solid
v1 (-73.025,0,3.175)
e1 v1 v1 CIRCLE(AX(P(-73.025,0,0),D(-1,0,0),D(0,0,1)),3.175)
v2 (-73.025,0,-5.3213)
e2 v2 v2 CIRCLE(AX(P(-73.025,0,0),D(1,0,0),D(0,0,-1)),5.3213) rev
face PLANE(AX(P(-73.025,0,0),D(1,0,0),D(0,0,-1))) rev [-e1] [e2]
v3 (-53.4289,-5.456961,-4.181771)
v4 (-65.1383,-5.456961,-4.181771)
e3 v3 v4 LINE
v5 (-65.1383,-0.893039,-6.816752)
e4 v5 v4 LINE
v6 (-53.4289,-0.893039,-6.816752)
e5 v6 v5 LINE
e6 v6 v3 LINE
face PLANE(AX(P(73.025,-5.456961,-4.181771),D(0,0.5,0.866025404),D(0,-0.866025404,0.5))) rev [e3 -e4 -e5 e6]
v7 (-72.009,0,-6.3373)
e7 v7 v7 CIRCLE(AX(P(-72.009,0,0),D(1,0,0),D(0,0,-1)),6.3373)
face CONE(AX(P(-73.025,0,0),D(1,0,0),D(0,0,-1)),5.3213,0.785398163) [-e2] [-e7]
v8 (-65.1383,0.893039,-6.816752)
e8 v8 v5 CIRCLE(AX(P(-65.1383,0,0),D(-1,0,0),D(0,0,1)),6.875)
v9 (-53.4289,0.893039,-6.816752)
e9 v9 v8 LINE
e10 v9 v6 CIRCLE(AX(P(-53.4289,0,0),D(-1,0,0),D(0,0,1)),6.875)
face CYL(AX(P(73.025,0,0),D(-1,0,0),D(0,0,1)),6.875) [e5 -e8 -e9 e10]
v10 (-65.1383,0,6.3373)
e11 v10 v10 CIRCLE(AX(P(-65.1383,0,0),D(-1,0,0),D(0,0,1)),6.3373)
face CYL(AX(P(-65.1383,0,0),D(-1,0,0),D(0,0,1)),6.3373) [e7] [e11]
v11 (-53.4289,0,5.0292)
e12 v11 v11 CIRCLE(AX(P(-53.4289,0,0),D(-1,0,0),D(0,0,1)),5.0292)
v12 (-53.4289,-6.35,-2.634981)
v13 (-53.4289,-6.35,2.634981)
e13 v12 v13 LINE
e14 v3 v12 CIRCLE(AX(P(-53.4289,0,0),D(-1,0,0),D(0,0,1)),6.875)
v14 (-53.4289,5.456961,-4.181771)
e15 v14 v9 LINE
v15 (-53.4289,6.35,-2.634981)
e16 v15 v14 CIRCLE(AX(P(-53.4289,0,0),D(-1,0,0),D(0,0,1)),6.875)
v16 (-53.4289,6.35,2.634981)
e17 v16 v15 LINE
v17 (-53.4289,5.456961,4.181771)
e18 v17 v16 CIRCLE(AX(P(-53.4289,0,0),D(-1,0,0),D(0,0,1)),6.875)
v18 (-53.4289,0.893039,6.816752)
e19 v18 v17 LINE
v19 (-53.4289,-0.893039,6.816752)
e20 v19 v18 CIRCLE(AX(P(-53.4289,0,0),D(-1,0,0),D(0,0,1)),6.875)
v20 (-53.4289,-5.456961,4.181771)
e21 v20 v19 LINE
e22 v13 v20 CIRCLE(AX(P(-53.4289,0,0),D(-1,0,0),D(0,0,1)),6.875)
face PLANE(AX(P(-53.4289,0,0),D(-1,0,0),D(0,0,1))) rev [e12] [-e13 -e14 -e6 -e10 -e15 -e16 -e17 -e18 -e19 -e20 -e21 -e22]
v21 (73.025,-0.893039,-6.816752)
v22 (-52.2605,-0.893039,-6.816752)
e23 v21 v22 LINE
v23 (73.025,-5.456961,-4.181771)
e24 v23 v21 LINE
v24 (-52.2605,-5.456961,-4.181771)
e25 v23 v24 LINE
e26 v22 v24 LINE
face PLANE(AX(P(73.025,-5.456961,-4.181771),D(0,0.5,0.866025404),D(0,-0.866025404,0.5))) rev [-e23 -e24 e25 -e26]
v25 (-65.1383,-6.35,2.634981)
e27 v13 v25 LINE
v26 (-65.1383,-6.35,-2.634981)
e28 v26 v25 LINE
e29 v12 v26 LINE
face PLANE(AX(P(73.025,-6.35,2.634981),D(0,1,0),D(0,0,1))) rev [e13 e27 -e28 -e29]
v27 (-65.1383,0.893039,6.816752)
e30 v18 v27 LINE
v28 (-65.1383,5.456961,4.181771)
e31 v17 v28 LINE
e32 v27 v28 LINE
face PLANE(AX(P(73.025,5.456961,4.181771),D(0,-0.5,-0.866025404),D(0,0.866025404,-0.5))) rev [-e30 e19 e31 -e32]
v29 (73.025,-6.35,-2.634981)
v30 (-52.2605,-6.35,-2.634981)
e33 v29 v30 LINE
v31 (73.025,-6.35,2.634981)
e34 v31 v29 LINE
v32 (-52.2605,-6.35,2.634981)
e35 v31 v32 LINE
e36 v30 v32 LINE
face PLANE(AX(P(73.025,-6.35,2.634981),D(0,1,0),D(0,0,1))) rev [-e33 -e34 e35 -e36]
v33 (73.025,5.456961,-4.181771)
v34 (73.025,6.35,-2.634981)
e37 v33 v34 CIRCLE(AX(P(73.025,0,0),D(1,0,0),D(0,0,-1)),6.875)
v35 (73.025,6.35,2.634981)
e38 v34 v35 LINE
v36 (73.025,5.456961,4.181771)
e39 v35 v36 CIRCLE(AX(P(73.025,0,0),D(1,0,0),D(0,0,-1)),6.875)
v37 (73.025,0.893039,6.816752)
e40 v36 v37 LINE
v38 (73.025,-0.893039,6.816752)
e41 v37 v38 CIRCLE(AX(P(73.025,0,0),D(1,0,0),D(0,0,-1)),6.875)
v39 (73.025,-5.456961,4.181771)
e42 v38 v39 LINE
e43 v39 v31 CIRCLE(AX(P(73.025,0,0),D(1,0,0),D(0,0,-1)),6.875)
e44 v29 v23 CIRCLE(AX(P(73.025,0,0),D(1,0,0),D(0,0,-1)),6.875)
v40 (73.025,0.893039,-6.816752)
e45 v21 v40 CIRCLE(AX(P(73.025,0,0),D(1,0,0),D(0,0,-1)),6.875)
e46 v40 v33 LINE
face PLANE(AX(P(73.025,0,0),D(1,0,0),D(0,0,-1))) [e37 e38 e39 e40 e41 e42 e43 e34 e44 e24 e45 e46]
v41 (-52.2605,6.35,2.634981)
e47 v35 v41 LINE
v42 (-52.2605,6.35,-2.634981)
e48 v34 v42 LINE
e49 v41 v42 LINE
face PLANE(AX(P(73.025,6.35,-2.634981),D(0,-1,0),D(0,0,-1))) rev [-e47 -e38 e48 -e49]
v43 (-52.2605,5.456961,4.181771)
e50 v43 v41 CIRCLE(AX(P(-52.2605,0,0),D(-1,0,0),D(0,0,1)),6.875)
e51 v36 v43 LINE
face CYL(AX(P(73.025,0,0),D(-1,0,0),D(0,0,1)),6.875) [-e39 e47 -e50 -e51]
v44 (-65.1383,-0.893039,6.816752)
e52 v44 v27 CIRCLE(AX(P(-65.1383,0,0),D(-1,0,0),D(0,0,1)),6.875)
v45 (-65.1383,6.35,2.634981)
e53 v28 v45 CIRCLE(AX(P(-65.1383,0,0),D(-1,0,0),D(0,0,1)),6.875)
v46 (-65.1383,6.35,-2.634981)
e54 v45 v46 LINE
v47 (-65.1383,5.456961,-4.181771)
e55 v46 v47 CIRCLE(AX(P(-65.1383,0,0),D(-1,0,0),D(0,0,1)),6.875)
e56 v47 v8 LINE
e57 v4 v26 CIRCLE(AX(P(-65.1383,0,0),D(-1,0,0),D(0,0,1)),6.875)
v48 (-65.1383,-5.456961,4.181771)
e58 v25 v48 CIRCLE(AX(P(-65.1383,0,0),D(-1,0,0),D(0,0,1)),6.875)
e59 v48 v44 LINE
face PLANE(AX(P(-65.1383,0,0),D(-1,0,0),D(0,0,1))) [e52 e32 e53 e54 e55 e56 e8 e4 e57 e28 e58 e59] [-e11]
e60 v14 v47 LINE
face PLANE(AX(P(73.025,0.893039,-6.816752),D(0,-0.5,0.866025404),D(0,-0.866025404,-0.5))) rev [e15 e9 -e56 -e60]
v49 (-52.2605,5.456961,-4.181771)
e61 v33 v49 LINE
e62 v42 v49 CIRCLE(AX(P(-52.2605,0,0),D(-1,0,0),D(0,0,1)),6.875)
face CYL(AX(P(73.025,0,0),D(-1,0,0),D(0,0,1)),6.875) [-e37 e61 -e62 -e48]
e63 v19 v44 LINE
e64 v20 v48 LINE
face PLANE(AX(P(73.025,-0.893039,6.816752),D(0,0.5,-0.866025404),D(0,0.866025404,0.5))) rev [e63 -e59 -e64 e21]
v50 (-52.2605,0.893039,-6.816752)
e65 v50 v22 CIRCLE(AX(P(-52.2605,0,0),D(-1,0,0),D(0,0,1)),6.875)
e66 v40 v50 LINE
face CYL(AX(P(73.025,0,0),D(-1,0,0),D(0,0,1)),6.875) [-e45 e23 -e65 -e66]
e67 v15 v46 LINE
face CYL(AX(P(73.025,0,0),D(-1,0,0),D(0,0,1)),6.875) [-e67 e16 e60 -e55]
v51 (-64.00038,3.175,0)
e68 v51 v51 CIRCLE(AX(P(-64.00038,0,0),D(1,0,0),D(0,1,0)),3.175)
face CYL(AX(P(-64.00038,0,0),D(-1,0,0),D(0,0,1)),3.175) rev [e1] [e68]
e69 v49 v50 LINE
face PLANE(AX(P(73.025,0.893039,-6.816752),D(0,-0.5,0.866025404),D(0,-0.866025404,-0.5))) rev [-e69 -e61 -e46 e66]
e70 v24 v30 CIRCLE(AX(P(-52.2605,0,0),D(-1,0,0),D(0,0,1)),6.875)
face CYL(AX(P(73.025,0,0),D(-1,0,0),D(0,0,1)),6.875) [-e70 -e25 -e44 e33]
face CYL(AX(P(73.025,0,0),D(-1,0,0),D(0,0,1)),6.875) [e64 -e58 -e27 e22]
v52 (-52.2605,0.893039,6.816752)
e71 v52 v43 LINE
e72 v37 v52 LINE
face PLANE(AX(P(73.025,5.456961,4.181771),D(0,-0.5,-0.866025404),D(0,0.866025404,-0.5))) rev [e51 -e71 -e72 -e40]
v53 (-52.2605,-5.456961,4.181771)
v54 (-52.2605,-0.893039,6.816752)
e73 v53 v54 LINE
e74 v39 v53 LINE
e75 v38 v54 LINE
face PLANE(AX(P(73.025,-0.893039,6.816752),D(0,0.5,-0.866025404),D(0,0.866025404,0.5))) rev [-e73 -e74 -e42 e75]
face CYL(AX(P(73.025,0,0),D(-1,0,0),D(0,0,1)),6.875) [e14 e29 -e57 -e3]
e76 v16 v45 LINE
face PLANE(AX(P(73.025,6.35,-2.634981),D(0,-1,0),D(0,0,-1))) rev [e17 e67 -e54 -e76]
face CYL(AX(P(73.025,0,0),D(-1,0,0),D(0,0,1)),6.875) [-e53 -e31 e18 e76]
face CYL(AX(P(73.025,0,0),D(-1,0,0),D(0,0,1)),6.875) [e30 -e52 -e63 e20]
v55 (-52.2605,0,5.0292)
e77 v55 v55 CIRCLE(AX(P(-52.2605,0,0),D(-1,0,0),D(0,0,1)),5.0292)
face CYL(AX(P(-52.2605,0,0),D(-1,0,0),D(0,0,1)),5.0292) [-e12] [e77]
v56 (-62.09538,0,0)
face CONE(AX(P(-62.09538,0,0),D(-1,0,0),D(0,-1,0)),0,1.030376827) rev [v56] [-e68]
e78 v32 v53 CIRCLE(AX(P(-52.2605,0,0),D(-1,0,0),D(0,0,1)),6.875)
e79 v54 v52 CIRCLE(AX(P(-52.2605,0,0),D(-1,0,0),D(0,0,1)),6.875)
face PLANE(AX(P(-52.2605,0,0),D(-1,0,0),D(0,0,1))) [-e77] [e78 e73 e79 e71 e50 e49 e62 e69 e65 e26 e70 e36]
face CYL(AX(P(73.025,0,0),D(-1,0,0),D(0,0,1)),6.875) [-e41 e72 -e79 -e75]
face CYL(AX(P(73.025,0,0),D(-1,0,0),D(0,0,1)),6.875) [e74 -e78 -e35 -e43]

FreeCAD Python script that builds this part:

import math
import FreeCAD as App
import Part
import Sketcher
from FreeCAD import Vector
Q = App.Units.Quantity


def edges_at(feature, points):
    """Names of the edges that pass closest to the given points."""
    edges = feature.Shape.Edges
    near = lambda p: min(range(len(edges)), key=lambda i: edges[i].distToShape(Part.Vertex(*p))[0])
    return sorted({f"Edge{near(p) + 1}" for p in points})

doc = App.newDocument("Part")
body = doc.addObject("PartDesign::Body", "Body")

sketch1 = doc.addObject("Sketcher::SketchObject", "Sketch")
body.addObject(sketch1)
sketch1.AttachmentSupport = (doc.YZ_Plane, [""])
sketch1.MapMode = "FlatFace"
sketch1.addGeometry([
    Part.LineSegment(Vector(6.3, -2.6, 0), Vector(6.3, 2.6, 0)),
    Part.ArcOfCircle(Part.Circle(Vector(0, 0, 0), Vector(0, 0, 1), 6.9), math.radians(22.54), math.radians(37.46)),
    Part.LineSegment(Vector(5.5, 4.2, 0), Vector(0.9, 6.8, 0)),
    Part.ArcOfCircle(Part.Circle(Vector(0, 0, 0), Vector(0, 0, 1), 6.9), math.radians(82.54), math.radians(97.46)),
    Part.LineSegment(Vector(-0.9, 6.8, 0), Vector(-5.5, 4.2, 0)),
    Part.ArcOfCircle(Part.Circle(Vector(0, 0, 0), Vector(0, 0, 1), 6.9), math.radians(142.54), math.radians(157.46)),
    Part.LineSegment(Vector(-6.3, 2.6, 0), Vector(-6.3, -2.6, 0)),
    Part.ArcOfCircle(Part.Circle(Vector(0, 0, 0), Vector(0, 0, 1), 6.9), math.radians(-157.46), math.radians(-142.54)),
    Part.LineSegment(Vector(-5.5, -4.2, 0), Vector(-0.9, -6.8, 0)),
    Part.ArcOfCircle(Part.Circle(Vector(0, 0, 0), Vector(0, 0, 1), 6.9), math.radians(-97.46), math.radians(-82.54)),
    Part.LineSegment(Vector(0.9, -6.8, 0), Vector(5.5, -4.2, 0)),
    Part.ArcOfCircle(Part.Circle(Vector(0, 0, 0), Vector(0, 0, 1), 6.9), math.radians(-37.46), math.radians(-22.54)),
], False)
sketch1.addConstraint([
    Sketcher.Constraint("Coincident", 0, 2, 1, 1),
    Sketcher.Constraint("Coincident", 1, 2, 2, 1),
    Sketcher.Constraint("Coincident", 2, 2, 3, 1),
    Sketcher.Constraint("Coincident", 3, 2, 4, 1),
    Sketcher.Constraint("Coincident", 4, 2, 5, 1),
    Sketcher.Constraint("Coincident", 5, 2, 6, 1),
    Sketcher.Constraint("Coincident", 6, 2, 7, 1),
    Sketcher.Constraint("Coincident", 7, 2, 8, 1),
    Sketcher.Constraint("Coincident", 8, 2, 9, 1),
    Sketcher.Constraint("Coincident", 9, 2, 10, 1),
    Sketcher.Constraint("Coincident", 10, 2, 11, 1),
    Sketcher.Constraint("Coincident", 11, 2, 0, 1),
    Sketcher.Constraint("Vertical", 0),
    Sketcher.Constraint("Vertical", 6),
    Sketcher.Constraint("Coincident", 1, 3, -1, 1),
    Sketcher.Constraint("Coincident", 3, 3, -1, 1),
    Sketcher.Constraint("Coincident", 5, 3, -1, 1),
    Sketcher.Constraint("Coincident", 7, 3, -1, 1),
    Sketcher.Constraint("Coincident", 9, 3, -1, 1),
    Sketcher.Constraint("Coincident", 11, 3, -1, 1),
    Sketcher.Constraint("Equal", 1, 3),
    Sketcher.Constraint("Equal", 3, 5),
    Sketcher.Constraint("Equal", 5, 7),
    Sketcher.Constraint("Equal", 7, 9),
    Sketcher.Constraint("Equal", 9, 11),
    Sketcher.Constraint("Parallel", 2, 8),
    Sketcher.Constraint("Parallel", 4, 10),
    Sketcher.Constraint("Horizontal", 2, 2, 3, 2),
    Sketcher.Constraint("Horizontal", 1, 2, 4, 2),
    Sketcher.Constraint("Horizontal", 0, 2, 5, 2),
    Sketcher.Constraint("Horizontal", 8, 2, 9, 2),
    Sketcher.Constraint("Vertical", 4, 2, 7, 2),
    Sketcher.Constraint("Angle", 2, Q("150 deg")),
    Sketcher.Constraint("DistanceX", -1, 1, 0, 2, Q("0.25 in")),
    Sketcher.Constraint("Radius", 1, 6.875),
    Sketcher.Constraint("DistanceX", 3, 2, 1, 2, Q("0.25 in")),
])
pad1 = doc.addObject("PartDesign::Pad", "Pad")
body.addObject(pad1)
pad1.Profile = sketch1
pad1.Length = Q("5.75 in")
pad1.Midplane = True

sketch2 = doc.addObject("Sketcher::SketchObject", "Sketch001")
body.addObject(sketch2)
sketch2.AttachmentSupport = (doc.YZ_Plane, [""])
sketch2.MapMode = "FlatFace"
sketch2.AttachmentOffset = App.Placement(Vector(0, 0, -2.5645 * 25.4), App.Rotation())
sketch2.addGeometry([
    Part.LineSegment(Vector(5.5, -4.2, 0), Vector(0.9, -6.8, 0)),
    Part.ArcOfCircle(Part.Circle(Vector(0, 0, 0), Vector(0, 0, 1), 6.9), math.radians(-97.46), math.radians(-82.54)),
    Part.LineSegment(Vector(-0.9, -6.8, 0), Vector(-5.5, -4.2, 0)),
    Part.ArcOfCircle(Part.Circle(Vector(0, 0, 0), Vector(0, 0, 1), 6.9), math.radians(-157.46), math.radians(-142.54)),
    Part.LineSegment(Vector(-6.3, -2.6, 0), Vector(-6.3, 2.6, 0)),
    Part.ArcOfCircle(Part.Circle(Vector(0, 0, 0), Vector(0, 0, 1), 6.9), math.radians(142.54), math.radians(157.46)),
    Part.LineSegment(Vector(-5.5, 4.2, 0), Vector(-0.9, 6.8, 0)),
    Part.ArcOfCircle(Part.Circle(Vector(0, 0, 0), Vector(0, 0, 1), 6.9), math.radians(82.54), math.radians(97.46)),
    Part.LineSegment(Vector(0.9, 6.8, 0), Vector(5.5, 4.2, 0)),
    Part.ArcOfCircle(Part.Circle(Vector(0, 0, 0), Vector(0, 0, 1), 6.9), math.radians(22.54), math.radians(37.46)),
    Part.LineSegment(Vector(6.3, 2.6, 0), Vector(6.3, -2.6, 0)),
    Part.ArcOfCircle(Part.Circle(Vector(0, 0, 0), Vector(0, 0, 1), 6.9), math.radians(-37.46), math.radians(-22.54)),
    Part.Circle(Vector(0, 0, 0), Vector(0, 0, 1), 6.3),
], False)
sketch2.addConstraint([
    Sketcher.Constraint("Coincident", 0, 2, 1, 2),
    Sketcher.Constraint("Coincident", 1, 1, 2, 1),
    Sketcher.Constraint("Coincident", 2, 2, 3, 2),
    Sketcher.Constraint("Coincident", 3, 1, 4, 1),
    Sketcher.Constraint("Coincident", 4, 2, 5, 2),
    Sketcher.Constraint("Coincident", 5, 1, 6, 1),
    Sketcher.Constraint("Coincident", 6, 2, 7, 2),
    Sketcher.Constraint("Coincident", 7, 1, 8, 1),
    Sketcher.Constraint("Coincident", 8, 2, 9, 2),
    Sketcher.Constraint("Coincident", 9, 1, 10, 1),
    Sketcher.Constraint("Coincident", 10, 2, 11, 2),
    Sketcher.Constraint("Coincident", 11, 1, 0, 1),
    Sketcher.Constraint("Vertical", 4),
    Sketcher.Constraint("Vertical", 10),
    Sketcher.Constraint("Coincident", 1, 3, -1, 1),
    Sketcher.Constraint("Coincident", 3, 3, -1, 1),
    Sketcher.Constraint("Coincident", 5, 3, -1, 1),
    Sketcher.Constraint("Coincident", 7, 3, -1, 1),
    Sketcher.Constraint("Coincident", 9, 3, -1, 1),
    Sketcher.Constraint("Coincident", 11, 3, -1, 1),
    Sketcher.Constraint("Coincident", 12, 3, -1, 1),
    Sketcher.Constraint("Equal", 1, 3),
    Sketcher.Constraint("Equal", 3, 5),
    Sketcher.Constraint("Equal", 5, 7),
    Sketcher.Constraint("Equal", 7, 9),
    Sketcher.Constraint("Equal", 9, 11),
    Sketcher.Constraint("Parallel", 0, 6),
    Sketcher.Constraint("Parallel", 2, 8),
    Sketcher.Constraint("Horizontal", 0, 2, 1, 1),
    Sketcher.Constraint("Horizontal", 6, 2, 7, 1),
    Sketcher.Constraint("Horizontal", 5, 1, 8, 2),
    Sketcher.Constraint("Horizontal", 4, 2, 9, 1),
    Sketcher.Constraint("Vertical", 2, 2, 5, 1),
    Sketcher.Constraint("Diameter", 12, Q("0.499 in")),
    Sketcher.Constraint("Angle", 0, Q("-150 deg")),
    Sketcher.Constraint("DistanceX", 3, 1, -1, 1, Q("0.25 in")),
    Sketcher.Constraint("Radius", 1, 6.875),
    Sketcher.Constraint("DistanceX", 2, 2, 0, 2, Q("0.25 in")),
])
pocket1 = doc.addObject("PartDesign::Pocket", "Pocket")
body.addObject(pocket1)
pocket1.Profile = sketch2
pocket1.Length = Q("0.3105 in")

sketch3 = doc.addObject("Sketcher::SketchObject", "Sketch002")
body.addObject(sketch3)
sketch3.AttachmentSupport = (doc.YZ_Plane, [""])
sketch3.MapMode = "FlatFace"
sketch3.AttachmentOffset = App.Placement(Vector(0, 0, -2.0575 * 25.4), App.Rotation())
sketch3.addGeometry([
    Part.LineSegment(Vector(5.5, -4.2, 0), Vector(0.9, -6.8, 0)),
    Part.ArcOfCircle(Part.Circle(Vector(0, 0, 0), Vector(0, 0, 1), 6.9), math.radians(-97.46), math.radians(-82.54)),
    Part.LineSegment(Vector(-0.9, -6.8, 0), Vector(-5.5, -4.2, 0)),
    Part.ArcOfCircle(Part.Circle(Vector(0, 0, 0), Vector(0, 0, 1), 6.9), math.radians(-157.46), math.radians(-142.54)),
    Part.LineSegment(Vector(-6.3, -2.6, 0), Vector(-6.3, 2.6, 0)),
    Part.ArcOfCircle(Part.Circle(Vector(0, 0, 0), Vector(0, 0, 1), 6.9), math.radians(142.54), math.radians(157.46)),
    Part.LineSegment(Vector(-5.5, 4.2, 0), Vector(-0.9, 6.8, 0)),
    Part.ArcOfCircle(Part.Circle(Vector(0, 0, 0), Vector(0, 0, 1), 6.9), math.radians(82.54), math.radians(97.46)),
    Part.LineSegment(Vector(0.9, 6.8, 0), Vector(5.5, 4.2, 0)),
    Part.ArcOfCircle(Part.Circle(Vector(0, 0, 0), Vector(0, 0, 1), 6.9), math.radians(22.54), math.radians(37.46)),
    Part.LineSegment(Vector(6.3, 2.6, 0), Vector(6.3, -2.6, 0)),
    Part.ArcOfCircle(Part.Circle(Vector(0, 0, 0), Vector(0, 0, 1), 6.9), math.radians(-37.46), math.radians(-22.54)),
    Part.Circle(Vector(0, 0, 0), Vector(0, 0, 1), 5),
], False)
sketch3.addConstraint([
    Sketcher.Constraint("Coincident", 0, 2, 1, 2),
    Sketcher.Constraint("Coincident", 1, 1, 2, 1),
    Sketcher.Constraint("Coincident", 2, 2, 3, 2),
    Sketcher.Constraint("Coincident", 3, 1, 4, 1),
    Sketcher.Constraint("Coincident", 4, 2, 5, 2),
    Sketcher.Constraint("Coincident", 5, 1, 6, 1),
    Sketcher.Constraint("Coincident", 6, 2, 7, 2),
    Sketcher.Constraint("Coincident", 7, 1, 8, 1),
    Sketcher.Constraint("Coincident", 8, 2, 9, 2),
    Sketcher.Constraint("Coincident", 9, 1, 10, 1),
    Sketcher.Constraint("Coincident", 10, 2, 11, 2),
    Sketcher.Constraint("Coincident", 11, 1, 0, 1),
    Sketcher.Constraint("Vertical", 4),
    Sketcher.Constraint("Vertical", 10),
    Sketcher.Constraint("Coincident", 1, 3, -1, 1),
    Sketcher.Constraint("Coincident", 3, 3, -1, 1),
    Sketcher.Constraint("Coincident", 5, 3, -1, 1),
    Sketcher.Constraint("Coincident", 7, 3, -1, 1),
    Sketcher.Constraint("Coincident", 9, 3, -1, 1),
    Sketcher.Constraint("Coincident", 11, 3, -1, 1),
    Sketcher.Constraint("Coincident", 12, 3, -1, 1),
    Sketcher.Constraint("Equal", 1, 3),
    Sketcher.Constraint("Equal", 3, 5),
    Sketcher.Constraint("Equal", 5, 7),
    Sketcher.Constraint("Equal", 7, 9),
    Sketcher.Constraint("Equal", 9, 11),
    Sketcher.Constraint("Parallel", 0, 6),
    Sketcher.Constraint("Parallel", 2, 8),
    Sketcher.Constraint("Horizontal", 0, 2, 1, 1),
    Sketcher.Constraint("Horizontal", 6, 2, 7, 1),
    Sketcher.Constraint("Horizontal", 5, 1, 8, 2),
    Sketcher.Constraint("Horizontal", 4, 2, 9, 1),
    Sketcher.Constraint("Vertical", 2, 2, 5, 1),
    Sketcher.Constraint("Diameter", 12, Q("0.396 in")),
    Sketcher.Constraint("Angle", 0, Q("-150 deg")),
    Sketcher.Constraint("DistanceX", 3, 1, -1, 1, Q("0.25 in")),
    Sketcher.Constraint("Radius", 1, 6.875),
    Sketcher.Constraint("DistanceX", 2, 2, 0, 2, Q("0.25 in")),
])
pocket2 = doc.addObject("PartDesign::Pocket", "Pocket001")
body.addObject(pocket2)
pocket2.Profile = sketch3
pocket2.Length = Q("0.046 in")

sketch4 = doc.addObject("Sketcher::SketchObject", "Sketch003")
body.addObject(sketch4)
sketch4.AttachmentSupport = (doc.YZ_Plane, [""])
sketch4.MapMode = "FlatFace"
sketch4.AttachmentOffset = App.Placement(Vector(0, 0, -2.875 * 25.4), App.Rotation())
sketch4.addGeometry(Part.Circle(Vector(0, 0, 0), Vector(0, 0, 1), 3.2), False)
sketch4.addConstraint([
    Sketcher.Constraint("Coincident", 0, 3, -1, 1),
    Sketcher.Constraint("Diameter", 0, Q("0.25 in")),
])
pocket3 = doc.addObject("PartDesign::Pocket", "Pocket002")
body.addObject(pocket3)
pocket3.Profile = sketch4
pocket3.Length = Q("0.3553 in")
pocket3.Reversed = True

sketch5 = doc.addObject("Sketcher::SketchObject", "Sketch004")
body.addObject(sketch5)
sketch5.AttachmentSupport = (doc.XY_Plane, [""])
sketch5.MapMode = "FlatFace"
sketch5.addGeometry([
    Part.LineSegment(Vector(-64, 0, 0), Vector(-62.1, 0, 0)),
    Part.LineSegment(Vector(-62.1, 0, 0), Vector(-64, 3.2, 0)),
    Part.LineSegment(Vector(-64, 3.2, 0), Vector(-64, 0, 0)),
], False)
sketch5.addConstraint([
    Sketcher.Constraint("Coincident", 0, 2, 1, 1),
    Sketcher.Constraint("Coincident", 1, 2, 2, 1),
    Sketcher.Constraint("Coincident", 2, 2, 0, 1),
    Sketcher.Constraint("Horizontal", 0),
    Sketcher.Constraint("Vertical", 2),
    Sketcher.Constraint("PointOnObject", 0, 2, -1),
    Sketcher.Constraint("DistanceX", 0, 1, 0, 2, Q("0.075 in")),
    Sketcher.Constraint("DistanceY", 2, 2, 2, 1, Q("0.125 in")),
    Sketcher.Constraint("DistanceX", 0, 2, -1, 1, Q("2.4447 in")),
])
groove = doc.addObject("PartDesign::Groove", "Groove")
body.addObject(groove)
groove.Profile = sketch5
groove.ReferenceAxis = (sketch5, ["H_Axis"])
groove.Angle = 360
doc.recompute()

chamfer = doc.addObject("PartDesign::Chamfer", "Chamfer")
body.addObject(chamfer)
chamfer.Base = (groove, edges_at(groove, [(-73.025, 0, -6.337)]))
chamfer.Size = Q("0.04 in")

doc.recompute()
